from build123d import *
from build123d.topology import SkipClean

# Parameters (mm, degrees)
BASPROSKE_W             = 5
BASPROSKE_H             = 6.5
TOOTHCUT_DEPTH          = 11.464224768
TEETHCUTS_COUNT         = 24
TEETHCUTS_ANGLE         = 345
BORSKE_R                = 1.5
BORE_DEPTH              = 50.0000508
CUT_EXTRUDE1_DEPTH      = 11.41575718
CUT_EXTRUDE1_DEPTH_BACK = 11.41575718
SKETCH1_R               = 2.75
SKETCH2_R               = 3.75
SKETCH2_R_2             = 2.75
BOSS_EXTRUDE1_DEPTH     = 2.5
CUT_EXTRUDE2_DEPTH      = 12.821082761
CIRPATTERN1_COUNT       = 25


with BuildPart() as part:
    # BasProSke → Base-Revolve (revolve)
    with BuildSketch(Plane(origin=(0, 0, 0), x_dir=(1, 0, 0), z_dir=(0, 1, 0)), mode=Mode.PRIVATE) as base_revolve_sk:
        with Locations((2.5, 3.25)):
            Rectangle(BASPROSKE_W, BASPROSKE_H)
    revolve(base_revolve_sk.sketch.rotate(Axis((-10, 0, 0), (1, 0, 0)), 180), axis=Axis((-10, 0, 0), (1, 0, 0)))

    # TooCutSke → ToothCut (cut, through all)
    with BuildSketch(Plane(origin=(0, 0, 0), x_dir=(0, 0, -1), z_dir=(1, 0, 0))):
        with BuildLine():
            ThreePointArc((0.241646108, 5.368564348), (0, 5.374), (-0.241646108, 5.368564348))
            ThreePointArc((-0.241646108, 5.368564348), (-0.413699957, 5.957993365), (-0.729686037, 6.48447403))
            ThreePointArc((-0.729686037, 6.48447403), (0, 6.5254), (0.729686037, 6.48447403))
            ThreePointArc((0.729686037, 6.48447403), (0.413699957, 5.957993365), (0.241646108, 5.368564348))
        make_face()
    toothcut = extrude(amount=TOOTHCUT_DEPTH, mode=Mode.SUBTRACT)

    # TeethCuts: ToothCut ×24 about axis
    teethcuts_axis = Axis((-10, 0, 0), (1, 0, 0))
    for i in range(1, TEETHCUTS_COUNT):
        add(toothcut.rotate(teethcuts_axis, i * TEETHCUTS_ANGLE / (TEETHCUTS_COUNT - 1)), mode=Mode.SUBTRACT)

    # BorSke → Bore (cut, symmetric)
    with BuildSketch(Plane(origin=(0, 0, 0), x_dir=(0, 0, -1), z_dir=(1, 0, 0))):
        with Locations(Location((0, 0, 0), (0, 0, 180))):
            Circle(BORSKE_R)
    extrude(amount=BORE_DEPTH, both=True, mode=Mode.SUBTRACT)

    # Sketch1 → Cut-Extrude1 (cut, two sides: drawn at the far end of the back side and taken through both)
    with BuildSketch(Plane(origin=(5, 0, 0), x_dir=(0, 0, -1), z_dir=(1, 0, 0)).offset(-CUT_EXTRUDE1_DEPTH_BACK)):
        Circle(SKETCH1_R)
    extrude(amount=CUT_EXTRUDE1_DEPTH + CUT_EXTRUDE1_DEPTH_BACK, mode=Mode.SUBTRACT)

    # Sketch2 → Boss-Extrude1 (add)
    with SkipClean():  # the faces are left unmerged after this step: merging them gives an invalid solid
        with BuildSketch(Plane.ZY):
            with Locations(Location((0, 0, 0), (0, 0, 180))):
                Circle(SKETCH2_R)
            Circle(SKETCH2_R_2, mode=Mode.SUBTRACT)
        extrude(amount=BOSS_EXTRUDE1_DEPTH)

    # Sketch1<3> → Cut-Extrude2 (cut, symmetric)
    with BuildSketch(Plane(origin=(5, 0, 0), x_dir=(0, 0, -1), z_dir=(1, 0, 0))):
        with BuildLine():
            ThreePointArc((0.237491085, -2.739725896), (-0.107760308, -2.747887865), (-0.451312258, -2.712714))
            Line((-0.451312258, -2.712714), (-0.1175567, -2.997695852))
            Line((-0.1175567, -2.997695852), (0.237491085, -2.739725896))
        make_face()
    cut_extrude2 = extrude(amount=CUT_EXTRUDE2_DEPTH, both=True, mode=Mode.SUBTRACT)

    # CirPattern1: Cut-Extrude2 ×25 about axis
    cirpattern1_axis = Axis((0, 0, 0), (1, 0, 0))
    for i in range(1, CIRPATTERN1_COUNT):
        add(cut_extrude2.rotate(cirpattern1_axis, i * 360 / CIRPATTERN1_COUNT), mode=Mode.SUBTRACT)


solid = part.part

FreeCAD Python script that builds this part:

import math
import FreeCAD as App
import Part
import Sketcher
from FreeCAD import Vector
Q = App.Units.Quantity


def add_polygon(sketch, points):
    """Adds a closed chain of lines whose ends are joined by coincident constraints."""
    first, n = sketch.GeometryCount, len(points)
    for a, b in zip(points, points[1:] + points[:1]):
        sketch.addGeometry(Part.LineSegment(App.Vector(*a, 0), App.Vector(*b, 0)), False)
    for i in range(n):
        sketch.addConstraint(Sketcher.Constraint("Coincident", first + i, 2, first + (i + 1) % n, 1))

doc = App.newDocument("Part")
body = doc.addObject("PartDesign::Body", "Body")

# Sketch on XZ plane
sketch1 = body.newObject("Sketcher::SketchObject", "Sketch")
sketch1.AttachmentSupport = (doc.getObject("XZ_Plane"), [""])
sketch1.MapMode = "FlatFace"
add_polygon(sketch1, [(0, -6), (0, 0), (5, 0), (5, -6)])  # lines 0-3
sketch1.addConstraint([
    Sketcher.Constraint("Vertical", 0),
    Sketcher.Constraint("Horizontal", 1),
    Sketcher.Constraint("Vertical", 2),
    Sketcher.Constraint("Horizontal", 3),
    Sketcher.Constraint("Coincident", 0, 2, -1, 1),
    Sketcher.Constraint("DistanceX", 1, 1, 1, 2, Q("5 mm")),
    Sketcher.Constraint("DistanceY", 0, 1, 0, 2, Q("6.5 mm")),
])
revolution = body.newObject("PartDesign::Revolution", "Revolution")
revolution.Profile = sketch1
revolution.ReferenceAxis = (sketch1, ["H_Axis"])
revolution.Angle = 360

# Sketch on YZ plane
sketch2 = body.newObject("Sketcher::SketchObject", "Sketch001")
sketch2.AttachmentSupport = (doc.getObject("YZ_Plane"), [""])
sketch2.MapMode = "FlatFace"
sketch2.addGeometry([
    Part.ArcOfCircle(Part.Circle(Vector(0, 0, 0), Vector(0, 0, 1), 5.37), math.radians(-2.58), math.radians(2.58)),
    Part.ArcOfCircle(Part.Circle(Vector(5, -2.61, 0), Vector(0, 0, 1), 2.4), math.radians(52), math.radians(81)),
    Part.ArcOfCircle(Part.Circle(Vector(0, 0, 0), Vector(0, 0, 1), 6.53), math.radians(-6.42), math.radians(6.42)),
    Part.ArcOfCircle(Part.Circle(Vector(5, 2.61, 0), Vector(0, 0, 1), 2.4), math.radians(-81), math.radians(-52)),
], False)
sketch2.addConstraint([
    Sketcher.Constraint("Coincident", 0, 1, 1, 2),
    Sketcher.Constraint("Coincident", 1, 1, 2, 1),
    Sketcher.Constraint("Coincident", 2, 2, 3, 2),
    Sketcher.Constraint("Coincident", 3, 1, 0, 2),
    Sketcher.Constraint("Coincident", 0, 3, -1, 1),
    Sketcher.Constraint("Coincident", 2, 3, -1, 1),
    Sketcher.Constraint("Equal", 1, 3),
    Sketcher.Constraint("Symmetric", 1, 3, 3, 3, -1),
    Sketcher.Constraint("Radius", 1, Q("2.4 mm")),
    Sketcher.Constraint("Radius", 0, Q("5.374 mm")),
    Sketcher.Constraint("Radius", 2, Q("6.5254 mm")),
    Sketcher.Constraint("DistanceY", 1, 3, -1, 1, Q("2.612601 mm")),
    Sketcher.Constraint("DistanceX", -1, 1, 1, 3, Q("4.99631 mm")),
])
pocket1 = body.newObject("PartDesign::Pocket", "Pocket")
pocket1.Profile = sketch2
pocket1.Type = "ThroughAll"
pocket1.Reversed = True
doc.recompute()

polarpattern = body.newObject("PartDesign::PolarPattern", "PolarPattern")
polarpattern.Originals = [pocket1]
polarpattern.Axis = (doc.getObject("X_Axis"), [""])
polarpattern.Angle = 360
polarpattern.Occurrences = 24
body.Tip = polarpattern

# Sketch on YZ plane
sketch3 = body.newObject("Sketcher::SketchObject", "Sketch002")
sketch3.AttachmentSupport = (doc.getObject("YZ_Plane"), [""])
sketch3.MapMode = "FlatFace"
sketch3.addGeometry(Part.Circle(Vector(0, 0, 0), Vector(0, 0, 1), 1.5), False)
sketch3.addConstraint([
    Sketcher.Constraint("Coincident", 0, 3, -1, 1),
    Sketcher.Constraint("Diameter", 0, Q("3 mm")),
])
pocket2 = body.newObject("PartDesign::Pocket", "Pocket001")
pocket2.Profile = sketch3
pocket2.Length = 100.000102
pocket2.Midplane = True

# Sketch on YZ plane
sketch4 = body.newObject("Sketcher::SketchObject", "Sketch003")
sketch4.AttachmentSupport = (doc.getObject("YZ_Plane"), [""])
sketch4.MapMode = "FlatFace"
sketch4.AttachmentOffset = App.Placement(Vector(0, 0, 5), App.Rotation())
sketch4.addGeometry(Part.Circle(Vector(0, 0, 0), Vector(0, 0, 1), 2.8), False)
sketch4.addConstraint([
    Sketcher.Constraint("Coincident", 0, 3, -1, 1),
    Sketcher.Constraint("Diameter", 0, Q("5.5 mm")),
])
pocket3 = body.newObject("PartDesign::Pocket", "Pocket002")
pocket3.Profile = sketch4
pocket3.Type = "ThroughAll"
pocket3.Midplane = True

# Sketch on YZ plane
sketch5 = body.newObject("Sketcher::SketchObject", "Sketch004")
sketch5.AttachmentSupport = (doc.getObject("YZ_Plane"), [""])
sketch5.MapMode = "FlatFace"
sketch5.addGeometry([
    Part.Circle(Vector(0, 0, 0), Vector(0, 0, 1), 3.8),
    Part.Circle(Vector(0, 0, 0), Vector(0, 0, 1), 2.8),
], False)
sketch5.addConstraint([
    Sketcher.Constraint("Coincident", 0, 3, -1, 1),
    Sketcher.Constraint("Coincident", 1, 3, -1, 1),
    Sketcher.Constraint("Diameter", 0, Q("7.5 mm")),
    Sketcher.Constraint("Diameter", 1, Q("5.5 mm")),
])
pad1 = body.newObject("PartDesign::Pad", "Pad")
pad1.Profile = sketch5
pad1.Length = 2.5
pad1.Reversed = True

# Sketch on YZ plane
sketch6 = body.newObject("Sketcher::SketchObject", "Sketch005")
sketch6.AttachmentSupport = (doc.getObject("YZ_Plane"), [""])
sketch6.MapMode = "FlatFace"
sketch6.AttachmentOffset = App.Placement(Vector(0, 0, 5), App.Rotation())
sketch6.addGeometry([
    Part.ArcOfCircle(Part.Circle(Vector(0, 0, 0), Vector(0, 0, 1), 2.75), math.radians(170.55), math.radians(184.95)),
    Part.LineSegment(Vector(-2.71, 0.45, 0), Vector(-3, 0.12, 0)),
    Part.LineSegment(Vector(-3, 0.12, 0), Vector(-2.74, -0.24, 0)),
], False)
sketch6.addConstraint([
    Sketcher.Constraint("Coincident", 0, 1, 1, 1),
    Sketcher.Constraint("Coincident", 1, 2, 2, 1),
    Sketcher.Constraint("Coincident", 2, 2, 0, 2),
    Sketcher.Constraint("Coincident", 0, 3, -1, 1),
    Sketcher.Constraint("Equal", 1, 2),
    Sketcher.Constraint("Radius", 0, Q("2.75 mm")),
    Sketcher.Constraint("Distance", 1, Q("0.438871 mm")),
    Sketcher.Constraint("DistanceY", 2, 2, -1, 1, Q("0.237491 mm")),
    Sketcher.Constraint("DistanceX", 1, 2, 0, 1, Q("0.284982 mm")),
])
pocket4 = body.newObject("PartDesign::Pocket", "Pocket003")
pocket4.Profile = sketch6
pocket4.Length = 25.642166
pocket4.Midplane = True
doc.recompute()

polarpattern2 = body.newObject("PartDesign::PolarPattern", "PolarPattern001")
polarpattern2.Originals = [pocket4]
polarpattern2.Axis = (doc.getObject("X_Axis"), [""])
polarpattern2.Angle = 360
polarpattern2.Occurrences = 25
body.Tip = polarpattern2

doc.recompute()
